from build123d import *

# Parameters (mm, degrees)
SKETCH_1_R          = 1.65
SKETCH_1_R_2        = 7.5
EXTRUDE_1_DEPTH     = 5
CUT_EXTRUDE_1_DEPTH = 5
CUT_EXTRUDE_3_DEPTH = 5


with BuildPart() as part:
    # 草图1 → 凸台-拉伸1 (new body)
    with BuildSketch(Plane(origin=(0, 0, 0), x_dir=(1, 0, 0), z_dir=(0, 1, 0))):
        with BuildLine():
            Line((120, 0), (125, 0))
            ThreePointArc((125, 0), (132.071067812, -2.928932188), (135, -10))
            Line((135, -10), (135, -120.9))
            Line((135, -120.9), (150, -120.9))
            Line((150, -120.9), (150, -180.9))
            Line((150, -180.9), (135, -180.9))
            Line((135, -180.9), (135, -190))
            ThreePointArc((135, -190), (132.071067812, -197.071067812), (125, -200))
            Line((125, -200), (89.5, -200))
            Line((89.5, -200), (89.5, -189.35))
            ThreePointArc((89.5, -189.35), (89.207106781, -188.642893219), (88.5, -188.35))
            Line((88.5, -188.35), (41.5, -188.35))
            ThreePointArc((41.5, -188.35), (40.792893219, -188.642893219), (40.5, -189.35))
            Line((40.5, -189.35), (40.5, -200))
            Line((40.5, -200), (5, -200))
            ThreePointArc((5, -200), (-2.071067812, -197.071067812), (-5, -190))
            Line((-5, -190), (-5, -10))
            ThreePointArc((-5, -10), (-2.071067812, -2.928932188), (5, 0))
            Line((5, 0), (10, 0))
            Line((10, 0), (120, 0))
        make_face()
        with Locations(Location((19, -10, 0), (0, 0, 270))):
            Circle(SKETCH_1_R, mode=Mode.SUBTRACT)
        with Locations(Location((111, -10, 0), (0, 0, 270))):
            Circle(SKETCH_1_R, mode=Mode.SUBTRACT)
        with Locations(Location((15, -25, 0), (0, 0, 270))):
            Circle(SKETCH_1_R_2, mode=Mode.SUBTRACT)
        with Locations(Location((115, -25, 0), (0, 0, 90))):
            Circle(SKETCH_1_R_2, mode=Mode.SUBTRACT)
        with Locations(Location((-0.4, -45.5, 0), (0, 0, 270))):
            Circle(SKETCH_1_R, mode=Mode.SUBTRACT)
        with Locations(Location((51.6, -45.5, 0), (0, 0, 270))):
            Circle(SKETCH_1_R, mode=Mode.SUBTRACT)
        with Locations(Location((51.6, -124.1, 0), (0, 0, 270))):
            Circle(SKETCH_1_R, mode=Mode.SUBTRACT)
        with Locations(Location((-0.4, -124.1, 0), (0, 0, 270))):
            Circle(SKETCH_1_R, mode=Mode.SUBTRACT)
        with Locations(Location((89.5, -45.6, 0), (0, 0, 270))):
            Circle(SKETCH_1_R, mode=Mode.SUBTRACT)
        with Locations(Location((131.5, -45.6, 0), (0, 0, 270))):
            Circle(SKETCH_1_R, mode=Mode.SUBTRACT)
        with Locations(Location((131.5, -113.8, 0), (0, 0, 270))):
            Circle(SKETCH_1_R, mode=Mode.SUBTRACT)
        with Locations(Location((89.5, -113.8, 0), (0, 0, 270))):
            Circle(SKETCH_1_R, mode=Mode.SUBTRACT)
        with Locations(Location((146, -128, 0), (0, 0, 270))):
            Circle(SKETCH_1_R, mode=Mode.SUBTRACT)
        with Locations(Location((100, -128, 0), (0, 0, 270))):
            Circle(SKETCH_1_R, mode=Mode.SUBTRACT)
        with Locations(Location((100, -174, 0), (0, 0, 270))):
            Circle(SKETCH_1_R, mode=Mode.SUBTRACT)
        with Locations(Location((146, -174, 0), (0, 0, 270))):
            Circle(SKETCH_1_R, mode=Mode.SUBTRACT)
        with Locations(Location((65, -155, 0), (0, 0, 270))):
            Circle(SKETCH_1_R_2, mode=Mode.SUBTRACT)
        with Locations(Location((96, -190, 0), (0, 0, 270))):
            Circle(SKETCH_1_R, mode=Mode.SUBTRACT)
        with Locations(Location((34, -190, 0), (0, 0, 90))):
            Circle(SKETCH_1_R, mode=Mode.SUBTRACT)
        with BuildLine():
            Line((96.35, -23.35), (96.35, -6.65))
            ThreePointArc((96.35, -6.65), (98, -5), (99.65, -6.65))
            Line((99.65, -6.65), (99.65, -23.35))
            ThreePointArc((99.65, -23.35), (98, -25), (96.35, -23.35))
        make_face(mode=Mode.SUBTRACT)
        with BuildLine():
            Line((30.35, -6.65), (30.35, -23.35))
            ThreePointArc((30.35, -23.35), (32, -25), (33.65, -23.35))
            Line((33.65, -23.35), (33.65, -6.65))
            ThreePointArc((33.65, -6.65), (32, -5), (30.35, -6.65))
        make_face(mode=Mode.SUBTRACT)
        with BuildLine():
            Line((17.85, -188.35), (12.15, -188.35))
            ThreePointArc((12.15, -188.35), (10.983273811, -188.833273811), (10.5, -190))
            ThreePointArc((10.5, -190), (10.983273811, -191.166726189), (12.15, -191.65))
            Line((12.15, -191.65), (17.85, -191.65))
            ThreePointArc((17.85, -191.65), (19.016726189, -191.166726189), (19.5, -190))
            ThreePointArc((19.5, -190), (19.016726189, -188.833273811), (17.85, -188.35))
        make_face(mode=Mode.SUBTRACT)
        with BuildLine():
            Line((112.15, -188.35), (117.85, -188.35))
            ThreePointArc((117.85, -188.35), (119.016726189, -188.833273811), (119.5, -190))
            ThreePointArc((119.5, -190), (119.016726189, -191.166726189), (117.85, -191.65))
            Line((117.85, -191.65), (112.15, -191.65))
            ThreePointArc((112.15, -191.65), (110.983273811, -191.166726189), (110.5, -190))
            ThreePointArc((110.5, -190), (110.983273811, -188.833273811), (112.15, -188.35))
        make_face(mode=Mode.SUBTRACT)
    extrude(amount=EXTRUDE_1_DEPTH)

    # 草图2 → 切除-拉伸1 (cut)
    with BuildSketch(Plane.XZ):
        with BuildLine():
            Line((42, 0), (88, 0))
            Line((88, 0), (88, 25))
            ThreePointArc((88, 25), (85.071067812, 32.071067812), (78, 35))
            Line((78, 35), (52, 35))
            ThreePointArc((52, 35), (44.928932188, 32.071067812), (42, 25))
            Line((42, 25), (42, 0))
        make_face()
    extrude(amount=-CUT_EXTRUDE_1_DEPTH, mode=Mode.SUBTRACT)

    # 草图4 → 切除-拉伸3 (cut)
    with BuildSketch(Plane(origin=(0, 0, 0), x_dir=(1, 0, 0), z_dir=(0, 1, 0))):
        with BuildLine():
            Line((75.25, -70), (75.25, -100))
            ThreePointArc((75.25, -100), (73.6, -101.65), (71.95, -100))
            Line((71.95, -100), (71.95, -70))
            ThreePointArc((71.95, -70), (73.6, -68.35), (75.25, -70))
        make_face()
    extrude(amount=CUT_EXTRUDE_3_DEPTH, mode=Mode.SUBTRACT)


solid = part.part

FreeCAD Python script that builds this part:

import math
import FreeCAD as App
import Part
import Sketcher
from FreeCAD import Vector

doc = App.newDocument("Part")
body = doc.addObject("PartDesign::Body", "Body")

sketch1 = doc.addObject("Sketcher::SketchObject", "Sketch")
body.addObject(sketch1)
sketch1.AttachmentSupport = (doc.XZ_Plane, [""])
sketch1.MapMode = "FlatFace"
sketch1.addGeometry(Part.ArcOfCircle(Part.Circle(Vector(125, 10, 0), Vector(0, 0, 1), 10), math.radians(-90), math.radians(0)), False)
sketch1.addGeometry(Part.LineSegment(Vector(125, 0, 0), Vector(5, 0, 0)), False)
sketch1.addGeometry(Part.ArcOfCircle(Part.Circle(Vector(5, 10, 0), Vector(0, 0, 1), 10), math.radians(180), math.radians(270)), False)
sketch1.addGeometry(Part.LineSegment(Vector(-5, 10, 0), Vector(-5, 190, 0)), False)
sketch1.addGeometry(Part.ArcOfCircle(Part.Circle(Vector(5, 190, 0), Vector(0, 0, 1), 10), math.radians(90), math.radians(180)), False)
sketch1.addGeometry(Part.LineSegment(Vector(5, 200, 0), Vector(40.5, 200, 0)), False)
sketch1.addGeometry(Part.LineSegment(Vector(40.5, 200, 0), Vector(40.5, 189.3, 0)), False)
sketch1.addGeometry(Part.ArcOfCircle(Part.Circle(Vector(41.5, 189.4, 0), Vector(0, 0, 1), 1), math.radians(-180), math.radians(-90)), False)
sketch1.addGeometry(Part.LineSegment(Vector(41.5, 188.3, 0), Vector(88.5, 188.3, 0)), False)
sketch1.addGeometry(Part.ArcOfCircle(Part.Circle(Vector(88.5, 189.4, 0), Vector(0, 0, 1), 1), math.radians(-90), math.radians(0)), False)
sketch1.addGeometry(Part.LineSegment(Vector(89.5, 189.3, 0), Vector(89.5, 200, 0)), False)
sketch1.addGeometry(Part.LineSegment(Vector(89.5, 200, 0), Vector(125, 200, 0)), False)
sketch1.addGeometry(Part.ArcOfCircle(Part.Circle(Vector(125, 190, 0), Vector(0, 0, 1), 10), math.radians(0), math.radians(90)), False)
sketch1.addGeometry(Part.LineSegment(Vector(135, 190, 0), Vector(135, 180.9, 0)), False)
sketch1.addGeometry(Part.LineSegment(Vector(135, 180.9, 0), Vector(150, 180.9, 0)), False)
sketch1.addGeometry(Part.LineSegment(Vector(150, 180.9, 0), Vector(150, 120.9, 0)), False)
sketch1.addGeometry(Part.LineSegment(Vector(150, 120.9, 0), Vector(135, 120.9, 0)), False)
sketch1.addGeometry(Part.LineSegment(Vector(135, 120.9, 0), Vector(135, 10, 0)), False)
sketch1.addGeometry(Part.Circle(Vector(146, 174, 0), Vector(0, 0, 1), 1.6), False)
sketch1.addGeometry(Part.LineSegment(Vector(112.2, 188.3, 0), Vector(117.8, 188.3, 0)), False)
sketch1.addGeometry(Part.ArcOfCircle(Part.Circle(Vector(117.8, 190, 0), Vector(0, 0, 1), 1.6), math.radians(-90), math.radians(0)), False)
sketch1.addGeometry(Part.ArcOfCircle(Part.Circle(Vector(117.8, 190, 0), Vector(0, 0, 1), 1.6), math.radians(0), math.radians(90)), False)
sketch1.addGeometry(Part.LineSegment(Vector(117.8, 191.7, 0), Vector(112.2, 191.7, 0)), False)
sketch1.addGeometry(Part.ArcOfCircle(Part.Circle(Vector(112.2, 190, 0), Vector(0, 0, 1), 1.6), math.radians(90), math.radians(180)), False)
sketch1.addGeometry(Part.ArcOfCircle(Part.Circle(Vector(112.2, 190, 0), Vector(0, 0, 1), 1.6), math.radians(180), math.radians(270)), False)
sketch1.addGeometry(Part.Circle(Vector(96, 190, 0), Vector(0, 0, 1), 1.6), False)
sketch1.addGeometry(Part.Circle(Vector(100, 174, 0), Vector(0, 0, 1), 1.6), False)
sketch1.addGeometry(Part.Circle(Vector(146, 128, 0), Vector(0, 0, 1), 1.6), False)
sketch1.addGeometry(Part.Circle(Vector(131.5, 113.8, 0), Vector(0, 0, 1), 1.6), False)
sketch1.addGeometry(Part.Circle(Vector(100, 128, 0), Vector(0, 0, 1), 1.6), False)
sketch1.addGeometry(Part.Circle(Vector(89.5, 113.8, 0), Vector(0, 0, 1), 1.6), False)
sketch1.addGeometry(Part.Circle(Vector(65, 155, 0), Vector(0, 0, 1), 7.5), False)
sketch1.addGeometry(Part.Circle(Vector(34, 190, 0), Vector(0, 0, 1), 1.6), False)
sketch1.addGeometry(Part.ArcOfCircle(Part.Circle(Vector(17.9, 190, 0), Vector(0, 0, 1), 1.6), math.radians(-90), math.radians(0)), False)
sketch1.addGeometry(Part.ArcOfCircle(Part.Circle(Vector(17.9, 190, 0), Vector(0, 0, 1), 1.6), math.radians(0), math.radians(90)), False)
sketch1.addGeometry(Part.LineSegment(Vector(17.9, 191.7, 0), Vector(12.2, 191.7, 0)), False)
sketch1.addGeometry(Part.ArcOfCircle(Part.Circle(Vector(12.2, 190, 0), Vector(0, 0, 1), 1.6), math.radians(90), math.radians(180)), False)
sketch1.addGeometry(Part.ArcOfCircle(Part.Circle(Vector(12.2, 190, 0), Vector(0, 0, 1), 1.6), math.radians(180), math.radians(270)), False)
sketch1.addGeometry(Part.LineSegment(Vector(12.2, 188.3, 0), Vector(17.9, 188.3, 0)), False)
sketch1.addGeometry(Part.Circle(Vector(51.6, 124.1, 0), Vector(0, 0, 1), 1.6), False)
sketch1.addGeometry(Part.Circle(Vector(-0.4, 124.1, 0), Vector(0, 0, 1), 1.6), False)
sketch1.addGeometry(Part.Circle(Vector(131.5, 45.6, 0), Vector(0, 0, 1), 1.6), False)
sketch1.addGeometry(Part.Circle(Vector(115, 25, 0), Vector(0, 0, 1), 7.5), False)
sketch1.addGeometry(Part.Circle(Vector(111, 10, 0), Vector(0, 0, 1), 1.6), False)
sketch1.addGeometry(Part.Circle(Vector(89.5, 45.6, 0), Vector(0, 0, 1), 1.6), False)
sketch1.addGeometry(Part.LineSegment(Vector(96.3, 23.4, 0), Vector(96.3, 6.7, 0)), False)
sketch1.addGeometry(Part.ArcOfCircle(Part.Circle(Vector(98, 6.7, 0), Vector(0, 0, 1), 1.6), math.radians(180), math.radians(360)), False)
sketch1.addGeometry(Part.LineSegment(Vector(99.7, 6.7, 0), Vector(99.7, 23.4, 0)), False)
sketch1.addGeometry(Part.ArcOfCircle(Part.Circle(Vector(98, 23.4, 0), Vector(0, 0, 1), 1.6), math.radians(0), math.radians(180)), False)
sketch1.addGeometry(Part.Circle(Vector(51.6, 45.5, 0), Vector(0, 0, 1), 1.6), False)
sketch1.addGeometry(Part.Circle(Vector(-0.4, 45.5, 0), Vector(0, 0, 1), 1.6), False)
sketch1.addGeometry(Part.ArcOfCircle(Part.Circle(Vector(32, 6.7, 0), Vector(0, 0, 1), 1.6), math.radians(180), math.radians(360)), False)
sketch1.addGeometry(Part.LineSegment(Vector(33.6, 6.7, 0), Vector(33.6, 23.4, 0)), False)
sketch1.addGeometry(Part.ArcOfCircle(Part.Circle(Vector(32, 23.4, 0), Vector(0, 0, 1), 1.6), math.radians(0), math.radians(180)), False)
sketch1.addGeometry(Part.LineSegment(Vector(30.4, 23.4, 0), Vector(30.4, 6.7, 0)), False)
sketch1.addGeometry(Part.Circle(Vector(19, 10, 0), Vector(0, 0, 1), 1.6), False)
sketch1.addGeometry(Part.Circle(Vector(15, 25, 0), Vector(0, 0, 1), 7.5), False)
sketch1.addConstraint(Sketcher.Constraint("Tangent", 0, 1, 1, 1))
sketch1.addConstraint(Sketcher.Constraint("Tangent", 1, 2, 2, 2))
sketch1.addConstraint(Sketcher.Constraint("Tangent", 2, 1, 3, 1))
sketch1.addConstraint(Sketcher.Constraint("Tangent", 3, 2, 4, 2))
sketch1.addConstraint(Sketcher.Constraint("Tangent", 4, 1, 5, 1))
sketch1.addConstraint(Sketcher.Constraint("Coincident", 5, 2, 6, 1))
sketch1.addConstraint(Sketcher.Constraint("Tangent", 6, 2, 7, 1))
sketch1.addConstraint(Sketcher.Constraint("Tangent", 7, 2, 8, 1))
sketch1.addConstraint(Sketcher.Constraint("Tangent", 8, 2, 9, 1))
sketch1.addConstraint(Sketcher.Constraint("Tangent", 9, 2, 10, 1))
sketch1.addConstraint(Sketcher.Constraint("Coincident", 10, 2, 11, 1))
sketch1.addConstraint(Sketcher.Constraint("Tangent", 11, 2, 12, 2))
sketch1.addConstraint(Sketcher.Constraint("Tangent", 12, 1, 13, 1))
sketch1.addConstraint(Sketcher.Constraint("Coincident", 13, 2, 14, 1))
sketch1.addConstraint(Sketcher.Constraint("Coincident", 14, 2, 15, 1))
sketch1.addConstraint(Sketcher.Constraint("Coincident", 15, 2, 16, 1))
sketch1.addConstraint(Sketcher.Constraint("Coincident", 16, 2, 17, 1))
sketch1.addConstraint(Sketcher.Constraint("Tangent", 17, 2, 0, 2))
sketch1.addConstraint(Sketcher.Constraint("Tangent", 19, 2, 20, 1))
sketch1.addConstraint(Sketcher.Constraint("Tangent", 20, 2, 21, 1))
sketch1.addConstraint(Sketcher.Constraint("Tangent", 21, 2, 22, 1))
sketch1.addConstraint(Sketcher.Constraint("Tangent", 22, 2, 23, 1))
sketch1.addConstraint(Sketcher.Constraint("Tangent", 23, 2, 24, 1))
sketch1.addConstraint(Sketcher.Constraint("Tangent", 24, 2, 19, 1))
sketch1.addConstraint(Sketcher.Constraint("Tangent", 33, 2, 34, 1))
sketch1.addConstraint(Sketcher.Constraint("Tangent", 34, 2, 35, 1))
sketch1.addConstraint(Sketcher.Constraint("Tangent", 35, 2, 36, 1))
sketch1.addConstraint(Sketcher.Constraint("Tangent", 36, 2, 37, 1))
sketch1.addConstraint(Sketcher.Constraint("Tangent", 37, 2, 38, 1))
sketch1.addConstraint(Sketcher.Constraint("Tangent", 38, 2, 33, 1))
sketch1.addConstraint(Sketcher.Constraint("Tangent", 45, 2, 46, 1))
sketch1.addConstraint(Sketcher.Constraint("Tangent", 46, 2, 47, 1))
sketch1.addConstraint(Sketcher.Constraint("Tangent", 47, 2, 48, 1))
sketch1.addConstraint(Sketcher.Constraint("Tangent", 48, 2, 45, 1))
sketch1.addConstraint(Sketcher.Constraint("Tangent", 51, 2, 52, 1))
sketch1.addConstraint(Sketcher.Constraint("Tangent", 52, 2, 53, 1))
sketch1.addConstraint(Sketcher.Constraint("Tangent", 53, 2, 54, 1))
sketch1.addConstraint(Sketcher.Constraint("Tangent", 54, 2, 51, 1))
sketch1.addConstraint(Sketcher.Constraint("Horizontal", 1))
sketch1.addConstraint(Sketcher.Constraint("Vertical", 3))
sketch1.addConstraint(Sketcher.Constraint("Horizontal", 5))
sketch1.addConstraint(Sketcher.Constraint("Vertical", 6))
sketch1.addConstraint(Sketcher.Constraint("Horizontal", 8))
sketch1.addConstraint(Sketcher.Constraint("Vertical", 10))
sketch1.addConstraint(Sketcher.Constraint("Horizontal", 11))
sketch1.addConstraint(Sketcher.Constraint("Vertical", 13))
sketch1.addConstraint(Sketcher.Constraint("Horizontal", 14))
sketch1.addConstraint(Sketcher.Constraint("Vertical", 15))
sketch1.addConstraint(Sketcher.Constraint("Horizontal", 16))
sketch1.addConstraint(Sketcher.Constraint("Vertical", 17))
sketch1.addConstraint(Sketcher.Constraint("Horizontal", 19))
sketch1.addConstraint(Sketcher.Constraint("Horizontal", 22))
sketch1.addConstraint(Sketcher.Constraint("Horizontal", 35))
sketch1.addConstraint(Sketcher.Constraint("Horizontal", 38))
sketch1.addConstraint(Sketcher.Constraint("Vertical", 45))
sketch1.addConstraint(Sketcher.Constraint("Vertical", 47))
sketch1.addConstraint(Sketcher.Constraint("Vertical", 52))
sketch1.addConstraint(Sketcher.Constraint("Vertical", 54))
sketch1.addConstraint(Sketcher.Constraint("Equal", 0, 2))
sketch1.addConstraint(Sketcher.Constraint("Equal", 2, 4))
sketch1.addConstraint(Sketcher.Constraint("Equal", 7, 9))
sketch1.addConstraint(Sketcher.Constraint("Equal", 4, 12))
sketch1.addConstraint(Sketcher.Constraint("Equal", 18, 20))
sketch1.addConstraint(Sketcher.Constraint("Equal", 20, 21))
sketch1.addConstraint(Sketcher.Constraint("Equal", 21, 23))
sketch1.addConstraint(Sketcher.Constraint("Equal", 24, 25))
sketch1.addConstraint(Sketcher.Constraint("Equal", 25, 26))
sketch1.addConstraint(Sketcher.Constraint("Equal", 26, 27))
sketch1.addConstraint(Sketcher.Constraint("Equal", 27, 28))
sketch1.addConstraint(Sketcher.Constraint("Equal", 28, 29))
sketch1.addConstraint(Sketcher.Constraint("Equal", 29, 30))
sketch1.addConstraint(Sketcher.Constraint("Equal", 30, 32))
sketch1.addConstraint(Sketcher.Constraint("Equal", 32, 33))
sketch1.addConstraint(Sketcher.Constraint("Equal", 33, 34))
sketch1.addConstraint(Sketcher.Constraint("Equal", 34, 36))
sketch1.addConstraint(Sketcher.Constraint("Equal", 37, 39))
sketch1.addConstraint(Sketcher.Constraint("Equal", 39, 40))
sketch1.addConstraint(Sketcher.Constraint("Equal", 40, 41))
sketch1.addConstraint(Sketcher.Constraint("Equal", 31, 42))
sketch1.addConstraint(Sketcher.Constraint("Equal", 41, 43))
sketch1.addConstraint(Sketcher.Constraint("Equal", 43, 44))
sketch1.addConstraint(Sketcher.Constraint("Equal", 44, 46))
sketch1.addConstraint(Sketcher.Constraint("Equal", 48, 49))
sketch1.addConstraint(Sketcher.Constraint("Equal", 49, 50))
sketch1.addConstraint(Sketcher.Constraint("Equal", 50, 51))
sketch1.addConstraint(Sketcher.Constraint("Equal", 53, 55))
sketch1.addConstraint(Sketcher.Constraint("Equal", 42, 56))
sketch1.addConstraint(Sketcher.Constraint("PointOnObject", 0, 1, -1))
sketch1.addConstraint(Sketcher.Constraint("Horizontal", 4, 3, 12, 3))
sketch1.addConstraint(Sketcher.Constraint("Horizontal", 12, 3, 20, 3))
sketch1.addConstraint(Sketcher.Constraint("Horizontal", 24, 3, 25, 3))
sketch1.addConstraint(Sketcher.Constraint("Horizontal", 18, 3, 26, 3))
sketch1.addConstraint(Sketcher.Constraint("Horizontal", 27, 3, 29, 3))
sketch1.addConstraint(Sketcher.Constraint("Horizontal", 28, 3, 30, 3))
sketch1.addConstraint(Sketcher.Constraint("Horizontal", 25, 3, 32, 3))
sketch1.addConstraint(Sketcher.Constraint("Horizontal", 32, 3, 33, 3))
sketch1.addConstraint(Sketcher.Constraint("Horizontal", 39, 3, 40, 3))
sketch1.addConstraint(Sketcher.Constraint("Horizontal", 2, 3, 43, 3))
sketch1.addConstraint(Sketcher.Constraint("Horizontal", 41, 3, 44, 3))
sketch1.addConstraint(Sketcher.Constraint("Horizontal", 49, 3, 50, 3))
sketch1.addConstraint(Sketcher.Constraint("Horizontal", 46, 3, 51, 3))
sketch1.addConstraint(Sketcher.Constraint("Horizontal", 48, 3, 53, 3))
sketch1.addConstraint(Sketcher.Constraint("Horizontal", 43, 3, 55, 3))
sketch1.addConstraint(Sketcher.Constraint("Horizontal", 42, 3, 56, 3))
sketch1.addConstraint(Sketcher.Constraint("Horizontal", 8, 2, 19, 2))
sketch1.addConstraint(Sketcher.Constraint("Horizontal", 12, 1, 20, 2))
sketch1.addConstraint(Sketcher.Constraint("Horizontal", 20, 2, 23, 2))
sketch1.addConstraint(Sketcher.Constraint("Horizontal", 23, 2, 33, 2))
sketch1.addConstraint(Sketcher.Constraint("Horizontal", 33, 2, 36, 2))
sketch1.addConstraint(Sketcher.Constraint("Vertical", 0, 3, 12, 3))
sketch1.addConstraint(Sketcher.Constraint("Vertical", 18, 3, 27, 3))
sketch1.addConstraint(Sketcher.Constraint("Vertical", 26, 3, 29, 3))
sketch1.addConstraint(Sketcher.Constraint("Vertical", 28, 3, 41, 3))
sketch1.addConstraint(Sketcher.Constraint("Vertical", 30, 3, 44, 3))
sketch1.addConstraint(Sketcher.Constraint("Vertical", 39, 3, 49, 3))
sketch1.addConstraint(Sketcher.Constraint("Vertical", 40, 3, 50, 3))
sketch1.addConstraint(Sketcher.Constraint("Vertical", 44, 3, 9, 2))
sketch1.addConstraint(Sketcher.Constraint("Equal", 5, 11))
sketch1.addConstraint(Sketcher.Constraint("Equal", 22, 35))
sketch1.addConstraint(Sketcher.Constraint("Diameter", 31, 15.0))
sketch1.addConstraint(Sketcher.Constraint("Radius", 0, 10.0))
sketch1.addConstraint(Sketcher.Constraint("Radius", 7, 1.0))
sketch1.addConstraint(Sketcher.Constraint("Diameter", 18, 3.3))
sketch1.addConstraint(Sketcher.Constraint("DistanceX", 1, 2, 1, 1, 120.0))
sketch1.addConstraint(Sketcher.Constraint("DistanceX", 8, 1, 8, 2, 47.0))
sketch1.addConstraint(Sketcher.Constraint("DistanceX", 14, 1, 14, 2, 15.0))
sketch1.addConstraint(Sketcher.Constraint("DistanceY", 3, 1, 3, 2, 180.0))
sketch1.addConstraint(Sketcher.Constraint("DistanceY", 15, 2, 15, 1, 60.0))
sketch1.addConstraint(Sketcher.Constraint("DistanceX", 19, 1, 19, 2, 5.7))
sketch1.addConstraint(Sketcher.Constraint("DistanceY", 13, 2, 13, 1, 9.1))
sketch1.addConstraint(Sketcher.Constraint("DistanceY", 45, 2, 45, 1, 16.7))
sketch1.addConstraint(Sketcher.Constraint("DistanceX", -1, 1, 0, 3, 125.0))
sketch1.addConstraint(Sketcher.Constraint("DistanceX", -1, 1, 18, 3, 146.0))
sketch1.addConstraint(Sketcher.Constraint("DistanceY", -1, 1, 18, 3, 174.0))
sketch1.addConstraint(Sketcher.Constraint("DistanceX", -1, 1, 25, 3, 96.0))
sketch1.addConstraint(Sketcher.Constraint("DistanceX", -1, 1, 26, 3, 100.0))
sketch1.addConstraint(Sketcher.Constraint("DistanceY", -1, 1, 27, 3, 128.0))
sketch1.addConstraint(Sketcher.Constraint("DistanceX", -1, 1, 31, 3, 65.0))
sketch1.addConstraint(Sketcher.Constraint("DistanceY", -1, 1, 31, 3, 155.0))
sketch1.addConstraint(Sketcher.Constraint("DistanceX", -1, 1, 32, 3, 34.0))
sketch1.addConstraint(Sketcher.Constraint("DistanceX", -1, 1, 42, 3, 115.0))
sketch1.addConstraint(Sketcher.Constraint("DistanceY", -1, 1, 42, 3, 25.0))
sketch1.addConstraint(Sketcher.Constraint("DistanceX", -1, 1, 43, 3, 111.0))
sketch1.addConstraint(Sketcher.Constraint("DistanceX", -1, 1, 46, 3, 98.0))
sketch1.addConstraint(Sketcher.Constraint("DistanceX", -1, 1, 51, 3, 32.0))
sketch1.addConstraint(Sketcher.Constraint("DistanceX", -1, 1, 55, 3, 19.0))
sketch1.addConstraint(Sketcher.Constraint("DistanceX", -1, 1, 56, 3, 15.0))
sketch1.addConstraint(Sketcher.Constraint("DistanceX", -1, 1, 28, 3, 131.5))
sketch1.addConstraint(Sketcher.Constraint("DistanceY", -1, 1, 28, 3, 113.8))
sketch1.addConstraint(Sketcher.Constraint("DistanceX", -1, 1, 39, 3, 51.6))
sketch1.addConstraint(Sketcher.Constraint("DistanceY", -1, 1, 39, 3, 124.1))
sketch1.addConstraint(Sketcher.Constraint("DistanceX", 40, 3, -1, 1, 0.4))
sketch1.addConstraint(Sketcher.Constraint("DistanceY", -1, 1, 41, 3, 45.6))
sketch1.addConstraint(Sketcher.Constraint("DistanceY", -1, 1, 49, 3, 45.5))
sketch1.addConstraint(Sketcher.Constraint("DistanceX", -1, 1, 20, 2, 119.5))
sketch1.addConstraint(Sketcher.Constraint("DistanceX", -1, 1, 33, 2, 19.5))
sketch1.addConstraint(Sketcher.Constraint("DistanceY", -1, 1, 46, 3, 6.65))
pad1 = doc.addObject("PartDesign::Pad", "Pad")
body.addObject(pad1)
pad1.Profile = sketch1
pad1.Length = 5
pad1.Reversed = True

sketch2 = doc.addObject("Sketcher::SketchObject", "Sketch001")
body.addObject(sketch2)
sketch2.AttachmentSupport = (doc.XZ_Plane, [""])
sketch2.MapMode = "FlatFace"
sketch2.addGeometry(Part.LineSegment(Vector(42, 0, 0), Vector(88, 0, 0)), False)
sketch2.addGeometry(Part.LineSegment(Vector(88, 0, 0), Vector(88, 25, 0)), False)
sketch2.addGeometry(Part.ArcOfCircle(Part.Circle(Vector(78, 25, 0), Vector(0, 0, 1), 10), math.radians(0), math.radians(90)), False)
sketch2.addGeometry(Part.LineSegment(Vector(78, 35, 0), Vector(52, 35, 0)), False)
sketch2.addGeometry(Part.ArcOfCircle(Part.Circle(Vector(52, 25, 0), Vector(0, 0, 1), 10), math.radians(90), math.radians(180)), False)
sketch2.addGeometry(Part.LineSegment(Vector(42, 25, 0), Vector(42, 0, 0)), False)
sketch2.addConstraint(Sketcher.Constraint("Coincident", 0, 2, 1, 1))
sketch2.addConstraint(Sketcher.Constraint("Tangent", 1, 2, 2, 1))
sketch2.addConstraint(Sketcher.Constraint("Tangent", 2, 2, 3, 1))
sketch2.addConstraint(Sketcher.Constraint("Tangent", 3, 2, 4, 1))
sketch2.addConstraint(Sketcher.Constraint("Tangent", 4, 2, 5, 1))
sketch2.addConstraint(Sketcher.Constraint("Coincident", 5, 2, 0, 1))
sketch2.addConstraint(Sketcher.Constraint("Horizontal", 0))
sketch2.addConstraint(Sketcher.Constraint("Vertical", 1))
sketch2.addConstraint(Sketcher.Constraint("Horizontal", 3))
sketch2.addConstraint(Sketcher.Constraint("Vertical", 5))
sketch2.addConstraint(Sketcher.Constraint("Equal", 2, 4))
sketch2.addConstraint(Sketcher.Constraint("PointOnObject", 0, 2, -1))
sketch2.addConstraint(Sketcher.Constraint("Radius", 2, 10.0))
sketch2.addConstraint(Sketcher.Constraint("DistanceX", 0, 1, 0, 2, 46.0))
sketch2.addConstraint(Sketcher.Constraint("DistanceY", 1, 1, 1, 2, 25.0))
sketch2.addConstraint(Sketcher.Constraint("DistanceX", -1, 1, 2, 3, 78.0))
pocket1 = doc.addObject("PartDesign::Pocket", "Pocket")
body.addObject(pocket1)
pocket1.Profile = sketch2
pocket1.Length = 5

sketch3 = doc.addObject("Sketcher::SketchObject", "Sketch002")
body.addObject(sketch3)
sketch3.AttachmentSupport = (doc.XZ_Plane, [""])
sketch3.MapMode = "FlatFace"
sketch3.addGeometry(Part.LineSegment(Vector(75.2, 100, 0), Vector(75.2, 70, 0)), False)
sketch3.addGeometry(Part.ArcOfCircle(Part.Circle(Vector(73.6, 70, 0), Vector(0, 0, 1), 1.6), math.radians(180), math.radians(360)), False)
sketch3.addGeometry(Part.LineSegment(Vector(72, 70, 0), Vector(72, 100, 0)), False)
sketch3.addGeometry(Part.ArcOfCircle(Part.Circle(Vector(73.6, 100, 0), Vector(0, 0, 1), 1.6), math.radians(0), math.radians(180)), False)
sketch3.addConstraint(Sketcher.Constraint("Tangent", 0, 2, 1, 2))
sketch3.addConstraint(Sketcher.Constraint("Tangent", 1, 1, 2, 1))
sketch3.addConstraint(Sketcher.Constraint("Tangent", 2, 2, 3, 2))
sketch3.addConstraint(Sketcher.Constraint("Tangent", 3, 1, 0, 1))
sketch3.addConstraint(Sketcher.Constraint("Vertical", 0))
sketch3.addConstraint(Sketcher.Constraint("Vertical", 2))
sketch3.addConstraint(Sketcher.Constraint("DistanceY", 0, 2, 0, 1, 30.0))
sketch3.addConstraint(Sketcher.Constraint("Radius", 1, 1.65))
sketch3.addConstraint(Sketcher.Constraint("DistanceY", -1, 1, 1, 3, 70.0))
sketch3.addConstraint(Sketcher.Constraint("DistanceX", -1, 1, 1, 3, 73.6))
pocket2 = doc.addObject("PartDesign::Pocket", "Pocket001")
body.addObject(pocket2)
pocket2.Profile = sketch3
pocket2.Length = 5

doc.recompute()
